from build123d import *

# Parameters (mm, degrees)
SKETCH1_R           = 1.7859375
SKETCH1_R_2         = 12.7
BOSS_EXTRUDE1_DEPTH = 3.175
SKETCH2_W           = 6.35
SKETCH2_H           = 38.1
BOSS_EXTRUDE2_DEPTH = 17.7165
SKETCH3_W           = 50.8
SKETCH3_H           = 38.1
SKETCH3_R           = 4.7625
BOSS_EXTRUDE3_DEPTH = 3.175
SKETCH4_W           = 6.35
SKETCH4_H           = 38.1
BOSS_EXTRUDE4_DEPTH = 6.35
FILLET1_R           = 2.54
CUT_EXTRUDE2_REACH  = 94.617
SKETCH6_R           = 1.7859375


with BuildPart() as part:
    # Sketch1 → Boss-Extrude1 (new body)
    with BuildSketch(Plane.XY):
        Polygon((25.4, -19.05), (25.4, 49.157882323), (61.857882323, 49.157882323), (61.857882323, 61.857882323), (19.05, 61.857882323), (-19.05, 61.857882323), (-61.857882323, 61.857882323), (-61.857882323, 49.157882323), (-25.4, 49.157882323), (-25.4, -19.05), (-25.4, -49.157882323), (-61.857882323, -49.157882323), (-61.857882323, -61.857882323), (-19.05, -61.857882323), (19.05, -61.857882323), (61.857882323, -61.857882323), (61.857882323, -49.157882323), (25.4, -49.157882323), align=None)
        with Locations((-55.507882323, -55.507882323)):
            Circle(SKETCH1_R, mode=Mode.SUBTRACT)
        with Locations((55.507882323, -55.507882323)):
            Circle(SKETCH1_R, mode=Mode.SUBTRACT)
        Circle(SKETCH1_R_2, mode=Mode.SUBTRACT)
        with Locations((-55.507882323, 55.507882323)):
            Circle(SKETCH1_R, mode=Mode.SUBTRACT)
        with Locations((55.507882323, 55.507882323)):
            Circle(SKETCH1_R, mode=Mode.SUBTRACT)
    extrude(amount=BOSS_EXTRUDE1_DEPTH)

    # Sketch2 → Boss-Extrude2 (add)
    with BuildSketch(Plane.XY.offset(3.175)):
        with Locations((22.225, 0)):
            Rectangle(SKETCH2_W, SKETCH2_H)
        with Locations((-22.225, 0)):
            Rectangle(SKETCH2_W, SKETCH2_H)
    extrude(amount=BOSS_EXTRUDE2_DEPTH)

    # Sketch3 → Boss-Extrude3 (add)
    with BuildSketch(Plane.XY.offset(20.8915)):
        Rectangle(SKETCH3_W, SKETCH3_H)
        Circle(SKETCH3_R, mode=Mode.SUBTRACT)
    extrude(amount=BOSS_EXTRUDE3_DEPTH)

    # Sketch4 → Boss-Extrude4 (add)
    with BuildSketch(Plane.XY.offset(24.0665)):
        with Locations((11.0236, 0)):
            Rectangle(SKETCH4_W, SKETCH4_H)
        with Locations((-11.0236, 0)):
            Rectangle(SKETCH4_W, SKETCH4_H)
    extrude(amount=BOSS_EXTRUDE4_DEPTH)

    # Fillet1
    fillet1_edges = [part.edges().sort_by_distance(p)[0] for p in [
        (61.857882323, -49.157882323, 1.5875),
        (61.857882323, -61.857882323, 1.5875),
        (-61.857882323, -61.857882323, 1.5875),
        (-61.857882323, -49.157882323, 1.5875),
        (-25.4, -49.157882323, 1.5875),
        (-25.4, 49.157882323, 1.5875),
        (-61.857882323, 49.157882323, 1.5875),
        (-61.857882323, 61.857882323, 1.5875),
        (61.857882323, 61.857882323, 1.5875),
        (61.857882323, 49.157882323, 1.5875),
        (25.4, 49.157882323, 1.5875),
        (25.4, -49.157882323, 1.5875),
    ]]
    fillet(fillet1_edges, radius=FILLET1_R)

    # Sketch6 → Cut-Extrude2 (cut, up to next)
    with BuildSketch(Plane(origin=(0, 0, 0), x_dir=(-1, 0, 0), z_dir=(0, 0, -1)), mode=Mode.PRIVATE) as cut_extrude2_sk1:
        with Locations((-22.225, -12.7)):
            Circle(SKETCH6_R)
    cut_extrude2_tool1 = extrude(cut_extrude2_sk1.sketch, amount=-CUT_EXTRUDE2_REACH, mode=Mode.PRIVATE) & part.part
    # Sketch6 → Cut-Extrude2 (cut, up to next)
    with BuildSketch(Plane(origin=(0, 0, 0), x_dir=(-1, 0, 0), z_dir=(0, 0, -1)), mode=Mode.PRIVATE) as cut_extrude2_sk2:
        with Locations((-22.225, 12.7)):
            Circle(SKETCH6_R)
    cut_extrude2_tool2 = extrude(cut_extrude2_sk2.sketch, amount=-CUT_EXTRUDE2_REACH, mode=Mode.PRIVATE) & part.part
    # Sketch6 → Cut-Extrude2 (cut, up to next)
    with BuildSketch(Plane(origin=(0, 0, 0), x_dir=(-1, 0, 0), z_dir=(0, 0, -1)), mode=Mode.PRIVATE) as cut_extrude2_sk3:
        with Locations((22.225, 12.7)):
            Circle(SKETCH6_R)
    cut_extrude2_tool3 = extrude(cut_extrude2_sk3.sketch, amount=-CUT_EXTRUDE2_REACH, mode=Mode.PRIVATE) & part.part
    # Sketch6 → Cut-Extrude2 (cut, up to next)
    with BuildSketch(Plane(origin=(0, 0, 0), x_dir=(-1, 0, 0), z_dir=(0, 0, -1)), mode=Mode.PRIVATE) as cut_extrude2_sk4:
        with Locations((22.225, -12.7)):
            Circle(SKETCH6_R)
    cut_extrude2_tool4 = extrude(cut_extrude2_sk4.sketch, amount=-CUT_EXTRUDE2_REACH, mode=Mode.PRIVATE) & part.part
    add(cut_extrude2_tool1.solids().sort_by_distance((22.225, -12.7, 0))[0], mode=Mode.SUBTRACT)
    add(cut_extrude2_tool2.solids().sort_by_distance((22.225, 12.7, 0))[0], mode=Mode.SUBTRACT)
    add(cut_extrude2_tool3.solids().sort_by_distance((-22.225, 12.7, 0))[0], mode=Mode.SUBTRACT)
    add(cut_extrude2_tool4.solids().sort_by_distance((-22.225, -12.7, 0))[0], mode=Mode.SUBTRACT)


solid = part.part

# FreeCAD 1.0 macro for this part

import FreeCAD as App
import Part
import Sketcher
from FreeCAD import Vector
Q = App.Units.Quantity


def edges_at(feature, points):
    """Names of the edges that pass closest to the given points."""
    edges = feature.Shape.Edges
    near = lambda p: min(range(len(edges)), key=lambda i: edges[i].distToShape(Part.Vertex(*p))[0])
    return sorted({f"Edge{near(p) + 1}" for p in points})

doc = App.newDocument("Part")
body = doc.addObject("PartDesign::Body", "Body")

# Sketch on XY plane
sketch1 = body.newObject("Sketcher::SketchObject", "Sketch")
sketch1.AttachmentSupport = (doc.getObject("XY_Plane"), [""])
sketch1.MapMode = "FlatFace"
sketch1.addGeometry([
    Part.LineSegment(Vector(25.4, 49.157882, 0), Vector(61.857882, 49.157882, 0)),  # 0
    Part.LineSegment(Vector(61.857882, 49.157882, 0), Vector(61.857882, 61.857882, 0)),  # 1
    Part.LineSegment(Vector(61.857882, 61.857882, 0), Vector(-61.857882, 61.857882, 0)),  # 2
    Part.LineSegment(Vector(-61.857882, 61.857882, 0), Vector(-61.857882, 49.157882, 0)),  # 3
    Part.LineSegment(Vector(-61.857882, 49.157882, 0), Vector(-25.4, 49.157882, 0)),  # 4
    Part.LineSegment(Vector(-25.4, 49.157882, 0), Vector(-25.4, -49.157882, 0)),  # 5
    Part.LineSegment(Vector(-25.4, -49.157882, 0), Vector(-61.857882, -49.157882, 0)),  # 6
    Part.LineSegment(Vector(-61.857882, -49.157882, 0), Vector(-61.857882, -61.857882, 0)),  # 7
    Part.LineSegment(Vector(-61.857882, -61.857882, 0), Vector(61.857882, -61.857882, 0)),  # 8
    Part.LineSegment(Vector(61.857882, -61.857882, 0), Vector(61.857882, -49.157882, 0)),  # 9
    Part.LineSegment(Vector(61.857882, -49.157882, 0), Vector(25.4, -49.157882, 0)),  # 10
    Part.LineSegment(Vector(25.4, -49.157882, 0), Vector(25.4, 49.157882, 0)),  # 11
    Part.Circle(Vector(-55.507882, -55.507882, 0), Vector(0, 0, 1), 1.785937),  # 12
    Part.Circle(Vector(55.507882, -55.507882, 0), Vector(0, 0, 1), 1.785937),  # 13
    Part.Circle(Vector(0, 0, 0), Vector(0, 0, 1), 12.7),  # 14
    Part.Circle(Vector(-55.507882, 55.507882, 0), Vector(0, 0, 1), 1.785937),  # 15
    Part.Circle(Vector(55.507882, 55.507882, 0), Vector(0, 0, 1), 1.785937),  # 16
], False)
sketch1.addConstraint([
    Sketcher.Constraint("Coincident", 0, 2, 1, 1),
    Sketcher.Constraint("Coincident", 1, 2, 2, 1),
    Sketcher.Constraint("Coincident", 2, 2, 3, 1),
    Sketcher.Constraint("Coincident", 3, 2, 4, 1),
    Sketcher.Constraint("Coincident", 4, 2, 5, 1),
    Sketcher.Constraint("Coincident", 5, 2, 6, 1),
    Sketcher.Constraint("Coincident", 6, 2, 7, 1),
    Sketcher.Constraint("Coincident", 7, 2, 8, 1),
    Sketcher.Constraint("Coincident", 8, 2, 9, 1),
    Sketcher.Constraint("Coincident", 9, 2, 10, 1),
    Sketcher.Constraint("Coincident", 10, 2, 11, 1),
    Sketcher.Constraint("Coincident", 11, 2, 0, 1),
    Sketcher.Constraint("Horizontal", 0),
    Sketcher.Constraint("Vertical", 1),
    Sketcher.Constraint("Horizontal", 2),
    Sketcher.Constraint("Vertical", 3),
    Sketcher.Constraint("Horizontal", 4),
    Sketcher.Constraint("Vertical", 5),
    Sketcher.Constraint("Horizontal", 6),
    Sketcher.Constraint("Vertical", 7),
    Sketcher.Constraint("Horizontal", 8),
    Sketcher.Constraint("Vertical", 9),
    Sketcher.Constraint("Horizontal", 10),
    Sketcher.Constraint("Vertical", 11),
    Sketcher.Constraint("Coincident", 14, 3, -1, 1),
    Sketcher.Constraint("Equal", 12, 13),
    Sketcher.Constraint("Equal", 13, 15),
    Sketcher.Constraint("Equal", 15, 16),
    Sketcher.Constraint("Symmetric", 13, 3, 15, 3, -1, 1),
    Sketcher.Constraint("Symmetric", 12, 3, 16, 3, -1, 1),
    Sketcher.Constraint("Symmetric", 0, 2, 6, 2, -1, 1),
    Sketcher.Constraint("Symmetric", 2, 2, 8, 2, -1, 1),
    Sketcher.Constraint("Symmetric", 4, 2, 10, 2, -1, 1),
    Sketcher.Constraint("Symmetric", 12, 3, 13, 3, -2),
    Sketcher.Constraint("Symmetric", 0, 2, 3, 2, -2),
    Sketcher.Constraint("Diameter", 14, Q("1 in")),
    Sketcher.Constraint("Diameter", 12, Q("0.140625 in")),
    Sketcher.Constraint("DistanceY", 1, 1, 1, 2, Q("0.5 in")),
    Sketcher.Constraint("DistanceX", 4, 2, -1, 1, Q("1 in")),
    Sketcher.Constraint("DistanceX", 16, 3, 0, 2, Q("0.25 in")),
    Sketcher.Constraint("DistanceY", 0, 2, 16, 3, Q("0.25 in")),
    Sketcher.Constraint("DistanceX", 0, 1, 0, 2, 36.457882),
    Sketcher.Constraint("DistanceY", 5, 2, 5, 1, 98.315765),
])
pad1 = body.newObject("PartDesign::Pad", "Pad")
pad1.Profile = sketch1
pad1.Length = Q("0.125 in")

# Sketch on XY plane
sketch2 = body.newObject("Sketcher::SketchObject", "Sketch001")
sketch2.AttachmentSupport = (doc.getObject("XY_Plane"), [""])
sketch2.MapMode = "FlatFace"
sketch2.AttachmentOffset = App.Placement(Vector(0, 0, 0.125 * 25.4), App.Rotation())
sketch2.addGeometry([
    Part.LineSegment(Vector(19.05, 19.05, 0), Vector(19.05, -19.05, 0)),  # 0
    Part.LineSegment(Vector(19.05, -19.05, 0), Vector(25.4, -19.05, 0)),  # 1
    Part.LineSegment(Vector(25.4, -19.05, 0), Vector(25.4, 19.05, 0)),  # 2
    Part.LineSegment(Vector(25.4, 19.05, 0), Vector(19.05, 19.05, 0)),  # 3
    Part.LineSegment(Vector(-25.4, 19.05, 0), Vector(-25.4, -19.05, 0)),  # 4
    Part.LineSegment(Vector(-25.4, -19.05, 0), Vector(-19.05, -19.05, 0)),  # 5
    Part.LineSegment(Vector(-19.05, -19.05, 0), Vector(-19.05, 19.05, 0)),  # 6
    Part.LineSegment(Vector(-19.05, 19.05, 0), Vector(-25.4, 19.05, 0)),  # 7
], False)
sketch2.addConstraint([
    Sketcher.Constraint("Coincident", 0, 2, 1, 1),
    Sketcher.Constraint("Coincident", 1, 2, 2, 1),
    Sketcher.Constraint("Coincident", 2, 2, 3, 1),
    Sketcher.Constraint("Coincident", 3, 2, 0, 1),
    Sketcher.Constraint("Coincident", 4, 2, 5, 1),
    Sketcher.Constraint("Coincident", 5, 2, 6, 1),
    Sketcher.Constraint("Coincident", 6, 2, 7, 1),
    Sketcher.Constraint("Coincident", 7, 2, 4, 1),
    Sketcher.Constraint("Vertical", 0),
    Sketcher.Constraint("Horizontal", 1),
    Sketcher.Constraint("Vertical", 2),
    Sketcher.Constraint("Horizontal", 3),
    Sketcher.Constraint("Vertical", 4),
    Sketcher.Constraint("Horizontal", 5),
    Sketcher.Constraint("Vertical", 6),
    Sketcher.Constraint("Horizontal", 7),
    Sketcher.Constraint("Symmetric", 2, 2, 4, 2, -1, 1),
    Sketcher.Constraint("Symmetric", 0, 2, 6, 2, -1, 1),
    Sketcher.Constraint("Horizontal", 1, 2, 4, 2),
    Sketcher.Constraint("DistanceY", 0, 2, 0, 1, Q("1.5 in")),
    Sketcher.Constraint("DistanceX", -1, 1, 1, 2, Q("1 in")),
    Sketcher.Constraint("DistanceX", 1, 1, 1, 2, Q("0.25 in")),
])
pad2 = body.newObject("PartDesign::Pad", "Pad001")
pad2.Profile = sketch2
pad2.Length = Q("0.6975 in")

# Sketch on XY plane
sketch3 = body.newObject("Sketcher::SketchObject", "Sketch002")
sketch3.AttachmentSupport = (doc.getObject("XY_Plane"), [""])
sketch3.MapMode = "FlatFace"
sketch3.AttachmentOffset = App.Placement(Vector(0, 0, 0.8225 * 25.4), App.Rotation())
sketch3.addGeometry([
    Part.LineSegment(Vector(-25.4, 19.05, 0), Vector(-25.4, -19.05, 0)),  # 0
    Part.LineSegment(Vector(-25.4, -19.05, 0), Vector(25.4, -19.05, 0)),  # 1
    Part.LineSegment(Vector(25.4, -19.05, 0), Vector(25.4, 19.05, 0)),  # 2
    Part.LineSegment(Vector(25.4, 19.05, 0), Vector(-25.4, 19.05, 0)),  # 3
    Part.Circle(Vector(0, 0, 0), Vector(0, 0, 1), 4.7625),  # 4
], False)
sketch3.addConstraint([
    Sketcher.Constraint("Coincident", 0, 2, 1, 1),
    Sketcher.Constraint("Coincident", 1, 2, 2, 1),
    Sketcher.Constraint("Coincident", 2, 2, 3, 1),
    Sketcher.Constraint("Coincident", 3, 2, 0, 1),
    Sketcher.Constraint("Vertical", 0),
    Sketcher.Constraint("Horizontal", 1),
    Sketcher.Constraint("Vertical", 2),
    Sketcher.Constraint("Horizontal", 3),
    Sketcher.Constraint("Coincident", 4, 3, -1, 1),
    Sketcher.Constraint("Symmetric", 0, 2, 2, 2, -1, 1),
    Sketcher.Constraint("DistanceX", 1, 1, 1, 2, Q("2 in")),
    Sketcher.Constraint("Diameter", 4, Q("0.375 in")),
    Sketcher.Constraint("DistanceY", 0, 2, 0, 1, Q("1.5 in")),
])
pad3 = body.newObject("PartDesign::Pad", "Pad002")
pad3.Profile = sketch3
pad3.Length = Q("0.125 in")

# Sketch on XY plane
sketch4 = body.newObject("Sketcher::SketchObject", "Sketch003")
sketch4.AttachmentSupport = (doc.getObject("XY_Plane"), [""])
sketch4.MapMode = "FlatFace"
sketch4.AttachmentOffset = App.Placement(Vector(0, 0, 0.9475 * 25.4), App.Rotation())
sketch4.addGeometry([
    Part.LineSegment(Vector(7.8486, 19.05, 0), Vector(7.8486, -19.05, 0)),  # 0
    Part.LineSegment(Vector(7.8486, -19.05, 0), Vector(14.1986, -19.05, 0)),  # 1
    Part.LineSegment(Vector(14.1986, -19.05, 0), Vector(14.1986, 19.05, 0)),  # 2
    Part.LineSegment(Vector(14.1986, 19.05, 0), Vector(7.8486, 19.05, 0)),  # 3
    Part.LineSegment(Vector(-14.1986, 19.05, 0), Vector(-14.1986, -19.05, 0)),  # 4
    Part.LineSegment(Vector(-14.1986, -19.05, 0), Vector(-7.8486, -19.05, 0)),  # 5
    Part.LineSegment(Vector(-7.8486, -19.05, 0), Vector(-7.8486, 19.05, 0)),  # 6
    Part.LineSegment(Vector(-7.8486, 19.05, 0), Vector(-14.1986, 19.05, 0)),  # 7
], False)
sketch4.addConstraint([
    Sketcher.Constraint("Coincident", 0, 2, 1, 1),
    Sketcher.Constraint("Coincident", 1, 2, 2, 1),
    Sketcher.Constraint("Coincident", 2, 2, 3, 1),
    Sketcher.Constraint("Coincident", 3, 2, 0, 1),
    Sketcher.Constraint("Coincident", 4, 2, 5, 1),
    Sketcher.Constraint("Coincident", 5, 2, 6, 1),
    Sketcher.Constraint("Coincident", 6, 2, 7, 1),
    Sketcher.Constraint("Coincident", 7, 2, 4, 1),
    Sketcher.Constraint("Vertical", 0),
    Sketcher.Constraint("Horizontal", 1),
    Sketcher.Constraint("Vertical", 2),
    Sketcher.Constraint("Horizontal", 3),
    Sketcher.Constraint("Vertical", 4),
    Sketcher.Constraint("Horizontal", 5),
    Sketcher.Constraint("Vertical", 6),
    Sketcher.Constraint("Horizontal", 7),
    Sketcher.Constraint("Symmetric", 2, 2, 4, 2, -1, 1),
    Sketcher.Constraint("Symmetric", 0, 2, 6, 2, -1, 1),
    Sketcher.Constraint("Horizontal", 1, 2, 4, 2),
    Sketcher.Constraint("DistanceY", 0, 2, 0, 1, Q("1.5 in")),
    Sketcher.Constraint("DistanceX", 1, 1, 1, 2, Q("0.25 in")),
    Sketcher.Constraint("DistanceX", -1, 1, 0, 2, Q("0.309 in")),
])
pad4 = body.newObject("PartDesign::Pad", "Pad003")
pad4.Profile = sketch4
pad4.Length = Q("0.25 in")
doc.recompute()

fillet = body.newObject("PartDesign::Fillet", "Fillet")
fillet.Base = (pad4, edges_at(pad4, [
    (61.858, -49.158, 1.587),
    (61.858, -61.858, 1.587),
    (-61.858, -61.858, 1.587),
    (-61.858, -49.158, 1.587),
    (-25.4, -49.158, 1.587),
    (-25.4, 49.158, 1.587),
    (-61.858, 49.158, 1.587),
    (-61.858, 61.858, 1.587),
    (61.858, 61.858, 1.587),
    (61.858, 49.158, 1.587),
    (25.4, 49.158, 1.587),
    (25.4, -49.158, 1.587),
]))
fillet.Radius = Q("0.1 in")

# Sketch on XY plane
sketch5 = body.newObject("Sketcher::SketchObject", "Sketch004")
sketch5.AttachmentSupport = (doc.getObject("XY_Plane"), [""])
sketch5.MapMode = "FlatFace"
sketch5.addGeometry(Part.Circle(Vector(22.225, -12.7, 0), Vector(0, 0, 1), 1.785937), False)
sketch5.addConstraint([
    Sketcher.Constraint("Diameter", 0, Q("0.140625 in")),
    Sketcher.Constraint("DistanceY", 0, 3, -1, 1, Q("0.5 in")),
    Sketcher.Constraint("DistanceX", -1, 1, 0, 3, Q("0.875 in")),
])
pocket1 = body.newObject("PartDesign::Pocket", "Pocket")
pocket1.Profile = sketch5
pocket1.Type = "UpToFirst"
pocket1.Reversed = True

# Sketch on XY plane
sketch6 = body.newObject("Sketcher::SketchObject", "Sketch005")
sketch6.AttachmentSupport = (doc.getObject("XY_Plane"), [""])
sketch6.MapMode = "FlatFace"
sketch6.addGeometry(Part.Circle(Vector(22.225, 12.7, 0), Vector(0, 0, 1), 1.785937), False)
sketch6.addConstraint([
    Sketcher.Constraint("Diameter", 0, Q("0.140625 in")),
    Sketcher.Constraint("DistanceY", -1, 1, 0, 3, Q("0.5 in")),
    Sketcher.Constraint("DistanceX", -1, 1, 0, 3, Q("0.875 in")),
])
pocket2 = body.newObject("PartDesign::Pocket", "Pocket001")
pocket2.Profile = sketch6
pocket2.Type = "UpToFirst"
pocket2.Reversed = True

# Sketch on XY plane
sketch7 = body.newObject("Sketcher::SketchObject", "Sketch006")
sketch7.AttachmentSupport = (doc.getObject("XY_Plane"), [""])
sketch7.MapMode = "FlatFace"
sketch7.addGeometry(Part.Circle(Vector(-22.225, 12.7, 0), Vector(0, 0, 1), 1.785937), False)
sketch7.addConstraint([
    Sketcher.Constraint("Diameter", 0, Q("0.140625 in")),
    Sketcher.Constraint("DistanceY", -1, 1, 0, 3, Q("0.5 in")),
    Sketcher.Constraint("DistanceX", 0, 3, -1, 1, Q("0.875 in")),
])
pocket3 = body.newObject("PartDesign::Pocket", "Pocket002")
pocket3.Profile = sketch7
pocket3.Type = "UpToFirst"
pocket3.Reversed = True

# Sketch on XY plane
sketch8 = body.newObject("Sketcher::SketchObject", "Sketch007")
sketch8.AttachmentSupport = (doc.getObject("XY_Plane"), [""])
sketch8.MapMode = "FlatFace"
sketch8.addGeometry(Part.Circle(Vector(-22.225, -12.7, 0), Vector(0, 0, 1), 1.785937), False)
sketch8.addConstraint([
    Sketcher.Constraint("Diameter", 0, Q("0.140625 in")),
    Sketcher.Constraint("DistanceY", 0, 3, -1, 1, Q("0.5 in")),
    Sketcher.Constraint("DistanceX", 0, 3, -1, 1, Q("0.875 in")),
])
pocket4 = body.newObject("PartDesign::Pocket", "Pocket003")
pocket4.Profile = sketch8
pocket4.Type = "UpToFirst"
pocket4.Reversed = True

doc.recompute()
